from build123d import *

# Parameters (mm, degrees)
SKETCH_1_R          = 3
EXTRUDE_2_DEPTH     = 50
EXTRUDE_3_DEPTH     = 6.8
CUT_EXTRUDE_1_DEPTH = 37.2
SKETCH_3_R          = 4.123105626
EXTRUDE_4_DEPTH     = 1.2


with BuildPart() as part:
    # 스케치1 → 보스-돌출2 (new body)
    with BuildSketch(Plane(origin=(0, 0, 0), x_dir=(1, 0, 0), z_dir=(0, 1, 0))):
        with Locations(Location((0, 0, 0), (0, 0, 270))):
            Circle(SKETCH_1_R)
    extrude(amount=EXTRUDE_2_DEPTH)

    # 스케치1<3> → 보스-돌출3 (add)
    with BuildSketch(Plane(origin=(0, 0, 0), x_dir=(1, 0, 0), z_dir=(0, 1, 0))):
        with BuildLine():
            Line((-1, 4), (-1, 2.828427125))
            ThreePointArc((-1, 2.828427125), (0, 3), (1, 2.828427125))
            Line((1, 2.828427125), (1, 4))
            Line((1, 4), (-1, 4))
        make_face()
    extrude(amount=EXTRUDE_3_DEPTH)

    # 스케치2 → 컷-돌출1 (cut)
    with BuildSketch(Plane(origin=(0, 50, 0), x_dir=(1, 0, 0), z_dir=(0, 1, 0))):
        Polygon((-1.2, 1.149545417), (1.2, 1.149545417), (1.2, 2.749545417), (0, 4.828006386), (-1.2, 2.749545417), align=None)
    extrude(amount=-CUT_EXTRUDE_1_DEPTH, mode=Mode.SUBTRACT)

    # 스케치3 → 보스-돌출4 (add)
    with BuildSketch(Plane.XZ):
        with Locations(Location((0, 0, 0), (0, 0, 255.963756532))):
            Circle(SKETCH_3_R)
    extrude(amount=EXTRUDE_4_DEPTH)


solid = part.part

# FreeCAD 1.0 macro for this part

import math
import FreeCAD as App
import Part
import Sketcher
from FreeCAD import Vector
Q = App.Units.Quantity


def add_polygon(sketch, points):
    """Adds a closed chain of lines whose ends are joined by coincident constraints."""
    first, n = sketch.GeometryCount, len(points)
    for a, b in zip(points, points[1:] + points[:1]):
        sketch.addGeometry(Part.LineSegment(App.Vector(*a, 0), App.Vector(*b, 0)), False)
    for i in range(n):
        sketch.addConstraint(Sketcher.Constraint("Coincident", first + i, 2, first + (i + 1) % n, 1))

doc = App.newDocument("Part")
body = doc.addObject("PartDesign::Body", "Body")

sketch1 = body.newObject("Sketcher::SketchObject", "Sketch")
sketch1.AttachmentSupport = (doc.getObject("XZ_Plane"), [""])
sketch1.MapMode = "FlatFace"
sketch1.addGeometry(Part.Circle(Vector(0, 0, 0), Vector(0, 0, 1), 3), False)
sketch1.addConstraint([
    Sketcher.Constraint("Coincident", 0, 3, -1, 1),
    Sketcher.Constraint("Diameter", 0, Q("6 mm")),
])
pad1 = body.newObject("PartDesign::Pad", "Pad")
pad1.Profile = sketch1
pad1.Length = 50
pad1.Reversed = True

sketch2 = body.newObject("Sketcher::SketchObject", "Sketch001")
sketch2.AttachmentSupport = (doc.getObject("XZ_Plane"), [""])
sketch2.MapMode = "FlatFace"
sketch2.addGeometry([
    Part.LineSegment(Vector(-1, -4, 0), Vector(-1, -2.8, 0)),
    Part.ArcOfCircle(Part.Circle(Vector(0, 0, 0), Vector(0, 0, 1), 3), math.radians(-109), math.radians(-71)),
    Part.LineSegment(Vector(1, -2.8, 0), Vector(1, -4, 0)),
    Part.LineSegment(Vector(1, -4, 0), Vector(-1, -4, 0)),
], False)
sketch2.addConstraint([
    Sketcher.Constraint("Coincident", 0, 2, 1, 1),
    Sketcher.Constraint("Coincident", 1, 2, 2, 1),
    Sketcher.Constraint("Coincident", 2, 2, 3, 1),
    Sketcher.Constraint("Coincident", 3, 2, 0, 1),
    Sketcher.Constraint("Vertical", 0),
    Sketcher.Constraint("Vertical", 2),
    Sketcher.Constraint("Horizontal", 3),
    Sketcher.Constraint("Coincident", 1, 3, -1, 1),
    Sketcher.Constraint("Horizontal", 0, 2, 1, 2),
    Sketcher.Constraint("Radius", 1, Q("3 mm")),
    Sketcher.Constraint("DistanceX", 3, 2, 3, 1, Q("2 mm")),
    Sketcher.Constraint("DistanceY", 2, 2, -1, 1, Q("4 mm")),
])
pad2 = body.newObject("PartDesign::Pad", "Pad001")
pad2.Profile = sketch2
pad2.Length = 6.8
pad2.Reversed = True

sketch3 = body.newObject("Sketcher::SketchObject", "Sketch002")
sketch3.AttachmentSupport = (doc.getObject("XZ_Plane"), [""])
sketch3.MapMode = "FlatFace"
sketch3.AttachmentOffset = App.Placement(Vector(0, 0, -50), App.Rotation())
add_polygon(sketch3, [(-1.2, -1.1), (1.2, -1.1), (1.2, -2.7), (0, -4.8), (-1.2, -2.7)])
sketch3.addConstraint([
    Sketcher.Constraint("Horizontal", 0),
    Sketcher.Constraint("Vertical", 1),
    Sketcher.Constraint("Vertical", 4),
    Sketcher.Constraint("Symmetric", 1, 2, 3, 2, -2),
    Sketcher.Constraint("PointOnObject", 2, 2, -2),
    Sketcher.Constraint("Angle", 2, Q("-120 deg")),
    Sketcher.Constraint("DistanceX", 0, 1, 0, 2, Q("2.4 mm")),
    Sketcher.Constraint("DistanceY", 1, 2, 1, 1, Q("1.6 mm")),
    Sketcher.Constraint("DistanceY", 0, 2, -1, 1, Q("1.149545 mm")),
])
pocket1 = body.newObject("PartDesign::Pocket", "Pocket")
pocket1.Profile = sketch3
pocket1.Length = 37.2
pocket1.Reversed = True

sketch4 = body.newObject("Sketcher::SketchObject", "Sketch003")
sketch4.AttachmentSupport = (doc.getObject("XZ_Plane"), [""])
sketch4.MapMode = "FlatFace"
sketch4.addGeometry(Part.Circle(Vector(0, 0, 0), Vector(0, 0, 1), 4.1), False)
sketch4.addConstraint([
    Sketcher.Constraint("Coincident", 0, 3, -1, 1),
    Sketcher.Constraint("Diameter", 0, Q("8.246211 mm")),
])
pad3 = body.newObject("PartDesign::Pad", "Pad002")
pad3.Profile = sketch4
pad3.Length = 1.2

doc.recompute()
